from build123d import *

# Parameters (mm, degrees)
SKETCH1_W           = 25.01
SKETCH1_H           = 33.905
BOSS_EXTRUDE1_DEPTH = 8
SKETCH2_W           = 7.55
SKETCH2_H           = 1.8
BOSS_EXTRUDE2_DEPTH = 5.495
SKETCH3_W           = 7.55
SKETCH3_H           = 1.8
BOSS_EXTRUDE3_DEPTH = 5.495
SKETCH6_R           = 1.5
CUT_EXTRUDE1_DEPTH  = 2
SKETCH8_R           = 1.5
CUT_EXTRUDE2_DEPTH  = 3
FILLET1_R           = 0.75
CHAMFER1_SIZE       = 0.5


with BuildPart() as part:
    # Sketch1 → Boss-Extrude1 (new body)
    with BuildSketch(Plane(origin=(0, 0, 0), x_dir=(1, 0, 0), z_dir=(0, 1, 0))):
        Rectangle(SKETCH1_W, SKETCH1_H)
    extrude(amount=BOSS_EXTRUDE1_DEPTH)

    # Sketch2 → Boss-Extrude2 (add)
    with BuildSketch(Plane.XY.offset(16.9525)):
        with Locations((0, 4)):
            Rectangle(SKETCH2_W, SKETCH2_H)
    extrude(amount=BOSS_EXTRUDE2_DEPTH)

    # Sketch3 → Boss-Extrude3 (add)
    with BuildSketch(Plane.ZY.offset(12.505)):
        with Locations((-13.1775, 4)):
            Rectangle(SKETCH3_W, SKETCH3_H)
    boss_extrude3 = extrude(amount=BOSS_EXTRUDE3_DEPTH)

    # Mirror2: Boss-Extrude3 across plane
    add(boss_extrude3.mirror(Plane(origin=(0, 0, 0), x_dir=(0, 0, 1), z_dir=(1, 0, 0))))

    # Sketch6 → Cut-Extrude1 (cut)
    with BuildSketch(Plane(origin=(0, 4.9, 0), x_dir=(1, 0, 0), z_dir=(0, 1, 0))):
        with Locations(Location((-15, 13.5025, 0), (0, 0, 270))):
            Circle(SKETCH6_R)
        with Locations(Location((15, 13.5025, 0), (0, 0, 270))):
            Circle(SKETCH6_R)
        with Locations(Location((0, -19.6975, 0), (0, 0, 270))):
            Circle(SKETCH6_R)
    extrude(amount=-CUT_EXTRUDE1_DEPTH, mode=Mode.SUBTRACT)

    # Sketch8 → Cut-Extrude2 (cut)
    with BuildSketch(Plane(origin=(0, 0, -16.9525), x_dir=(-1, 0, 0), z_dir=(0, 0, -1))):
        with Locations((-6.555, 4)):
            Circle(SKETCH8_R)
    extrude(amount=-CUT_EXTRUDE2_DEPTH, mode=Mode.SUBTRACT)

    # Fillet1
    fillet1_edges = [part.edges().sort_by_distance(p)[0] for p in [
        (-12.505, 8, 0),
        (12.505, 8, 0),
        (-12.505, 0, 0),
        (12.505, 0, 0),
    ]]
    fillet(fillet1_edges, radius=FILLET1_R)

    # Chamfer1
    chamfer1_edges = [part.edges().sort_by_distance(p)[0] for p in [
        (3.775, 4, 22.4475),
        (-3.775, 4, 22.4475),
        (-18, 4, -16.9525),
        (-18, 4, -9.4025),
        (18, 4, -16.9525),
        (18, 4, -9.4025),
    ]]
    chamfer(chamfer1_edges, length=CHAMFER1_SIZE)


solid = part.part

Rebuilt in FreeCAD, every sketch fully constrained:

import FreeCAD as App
import Part
import Sketcher


def edges_at(feature, points):
    """Names of the edges that pass closest to the given points."""
    edges = feature.Shape.Edges
    near = lambda p: min(range(len(edges)), key=lambda i: edges[i].distToShape(Part.Vertex(*p))[0])
    return sorted({f"Edge{near(p) + 1}" for p in points})


def add_polygon(sketch, points):
    """Adds a closed chain of lines whose ends are joined by coincident constraints."""
    first, n = sketch.GeometryCount, len(points)
    for a, b in zip(points, points[1:] + points[:1]):
        sketch.addGeometry(Part.LineSegment(App.Vector(*a, 0), App.Vector(*b, 0)), False)
    for i in range(n):
        sketch.addConstraint(Sketcher.Constraint("Coincident", first + i, 2, first + (i + 1) % n, 1))

doc = App.newDocument("Part")
body = doc.addObject("PartDesign::Body", "Body")

# Sketch on XZ plane
sketch1 = body.newObject("Sketcher::SketchObject", "Sketch")
sketch1.AttachmentSupport = (doc.getObject("XZ_Plane"), [""])
sketch1.MapMode = "FlatFace"
add_polygon(sketch1, [(-13, -17), (-13, 17), (13, 17), (13, -17)])  # lines 0-3
sketch1.addConstraint(Sketcher.Constraint("Vertical", 0))
sketch1.addConstraint(Sketcher.Constraint("Horizontal", 1))
sketch1.addConstraint(Sketcher.Constraint("Vertical", 2))
sketch1.addConstraint(Sketcher.Constraint("Horizontal", 3))
sketch1.addConstraint(Sketcher.Constraint("Symmetric", 0, 2, 2, 2, -1, 1))
sketch1.addConstraint(Sketcher.Constraint("DistanceX", 1, 1, 1, 2, 25.01))
sketch1.addConstraint(Sketcher.Constraint("DistanceY", 0, 1, 0, 2, 33.905))
pad1 = body.newObject("PartDesign::Pad", "Pad")
pad1.Profile = sketch1
pad1.Length = 8
pad1.Reversed = True

# Sketch on XY plane
sketch2 = body.newObject("Sketcher::SketchObject", "Sketch001")
sketch2.AttachmentSupport = (doc.getObject("XY_Plane"), [""])
sketch2.MapMode = "FlatFace"
sketch2.AttachmentOffset = App.Placement(App.Vector(0, 0, 16.9525), App.Rotation())
add_polygon(sketch2, [(-3.8, 4.9), (-3.8, 3.1), (3.8, 3.1), (3.8, 4.9)])  # lines 0-3
sketch2.addConstraint(Sketcher.Constraint("Vertical", 0))
sketch2.addConstraint(Sketcher.Constraint("Horizontal", 1))
sketch2.addConstraint(Sketcher.Constraint("Vertical", 2))
sketch2.addConstraint(Sketcher.Constraint("Horizontal", 3))
sketch2.addConstraint(Sketcher.Constraint("DistanceY", 0, 2, 0, 1, 1.8))
sketch2.addConstraint(Sketcher.Constraint("DistanceX", 1, 1, 1, 2, 7.55))
sketch2.addConstraint(Sketcher.Constraint("DistanceY", -1, 1, 0, 2, 3.1))
sketch2.addConstraint(Sketcher.Constraint("DistanceX", 0, 2, -1, 1, 3.775))
pad2 = body.newObject("PartDesign::Pad", "Pad001")
pad2.Profile = sketch2
pad2.Length = 5.495

# Sketch on YZ plane
sketch3 = body.newObject("Sketcher::SketchObject", "Sketch002")
sketch3.AttachmentSupport = (doc.getObject("YZ_Plane"), [""])
sketch3.MapMode = "FlatFace"
sketch3.AttachmentOffset = App.Placement(App.Vector(0, 0, -12.505), App.Rotation())
add_polygon(sketch3, [(4.9, -17), (3.1, -17), (3.1, -9.4), (4.9, -9.4)])  # lines 0-3
sketch3.addConstraint(Sketcher.Constraint("Horizontal", 0))
sketch3.addConstraint(Sketcher.Constraint("Vertical", 1))
sketch3.addConstraint(Sketcher.Constraint("Horizontal", 2))
sketch3.addConstraint(Sketcher.Constraint("Vertical", 3))
sketch3.addConstraint(Sketcher.Constraint("DistanceX", 0, 2, 0, 1, 1.8))
sketch3.addConstraint(Sketcher.Constraint("DistanceY", 1, 1, 1, 2, 7.55))
sketch3.addConstraint(Sketcher.Constraint("DistanceX", -1, 1, 0, 2, 3.1))
sketch3.addConstraint(Sketcher.Constraint("DistanceY", 0, 2, -1, 1, 16.9525))
pad3 = body.newObject("PartDesign::Pad", "Pad002")
pad3.Profile = sketch3
pad3.Length = 5.495
pad3.Reversed = True
doc.recompute()

mirrored = body.newObject("PartDesign::Mirrored", "Mirrored")
mirrored.Originals = [pad3]
mirrored.MirrorPlane = (doc.getObject("YZ_Plane"), [""])
body.Tip = mirrored

# Sketch on XZ plane
sketch4 = body.newObject("Sketcher::SketchObject", "Sketch003")
sketch4.AttachmentSupport = (doc.getObject("XZ_Plane"), [""])
sketch4.MapMode = "FlatFace"
sketch4.AttachmentOffset = App.Placement(App.Vector(0, 0, -4.9), App.Rotation())
sketch4.addGeometry(Part.Circle(App.Vector(-15, -13.5, 0), App.Vector(0, 0, 1), 1.5), False)
sketch4.addGeometry(Part.Circle(App.Vector(15, -13.5, 0), App.Vector(0, 0, 1), 1.5), False)
sketch4.addGeometry(Part.Circle(App.Vector(0, 19.7, 0), App.Vector(0, 0, 1), 1.5), False)
sketch4.addConstraint(Sketcher.Constraint("Equal", 0, 1))
sketch4.addConstraint(Sketcher.Constraint("Equal", 1, 2))
sketch4.addConstraint(Sketcher.Constraint("Symmetric", 0, 3, 1, 3, -2))
sketch4.addConstraint(Sketcher.Constraint("PointOnObject", 2, 3, -2))
sketch4.addConstraint(Sketcher.Constraint("Diameter", 0, 3.0))
sketch4.addConstraint(Sketcher.Constraint("DistanceX", 0, 3, -1, 1, 15.0))
sketch4.addConstraint(Sketcher.Constraint("DistanceY", 0, 3, 2, 3, 33.2))
sketch4.addConstraint(Sketcher.Constraint("DistanceY", 0, 3, -1, 1, 13.5025))
pocket1 = body.newObject("PartDesign::Pocket", "Pocket")
pocket1.Profile = sketch4
pocket1.Length = 2
pocket1.Reversed = True

# Sketch on XY plane
sketch5 = body.newObject("Sketcher::SketchObject", "Sketch004")
sketch5.AttachmentSupport = (doc.getObject("XY_Plane"), [""])
sketch5.MapMode = "FlatFace"
sketch5.AttachmentOffset = App.Placement(App.Vector(0, 0, -16.9525), App.Rotation())
sketch5.addGeometry(Part.Circle(App.Vector(6.6, 4, 0), App.Vector(0, 0, 1), 1.5), False)
sketch5.addConstraint(Sketcher.Constraint("Diameter", 0, 3.0))
sketch5.addConstraint(Sketcher.Constraint("DistanceY", -1, 1, 0, 3, 4.0))
sketch5.addConstraint(Sketcher.Constraint("DistanceX", -1, 1, 0, 3, 6.555))
pocket2 = body.newObject("PartDesign::Pocket", "Pocket001")
pocket2.Profile = sketch5
pocket2.Length = 3
pocket2.Reversed = True
doc.recompute()

fillet = body.newObject("PartDesign::Fillet", "Fillet")
fillet.Base = (pocket2, edges_at(pocket2, [
    (-12.505, 8, 0),
    (12.505, 8, 0),
    (-12.505, 0, 0),
    (12.505, 0, 0),
]))
fillet.Radius = 0.75
doc.recompute()

chamfer = body.newObject("PartDesign::Chamfer", "Chamfer")
chamfer.Base = (fillet, edges_at(fillet, [
    (3.775, 4, 22.448),
    (-3.775, 4, 22.448),
    (-18, 4, -16.953),
    (-18, 4, -9.402),
    (18, 4, -16.953),
    (18, 4, -9.402),
]))
chamfer.Size = 0.5

doc.recompute()
